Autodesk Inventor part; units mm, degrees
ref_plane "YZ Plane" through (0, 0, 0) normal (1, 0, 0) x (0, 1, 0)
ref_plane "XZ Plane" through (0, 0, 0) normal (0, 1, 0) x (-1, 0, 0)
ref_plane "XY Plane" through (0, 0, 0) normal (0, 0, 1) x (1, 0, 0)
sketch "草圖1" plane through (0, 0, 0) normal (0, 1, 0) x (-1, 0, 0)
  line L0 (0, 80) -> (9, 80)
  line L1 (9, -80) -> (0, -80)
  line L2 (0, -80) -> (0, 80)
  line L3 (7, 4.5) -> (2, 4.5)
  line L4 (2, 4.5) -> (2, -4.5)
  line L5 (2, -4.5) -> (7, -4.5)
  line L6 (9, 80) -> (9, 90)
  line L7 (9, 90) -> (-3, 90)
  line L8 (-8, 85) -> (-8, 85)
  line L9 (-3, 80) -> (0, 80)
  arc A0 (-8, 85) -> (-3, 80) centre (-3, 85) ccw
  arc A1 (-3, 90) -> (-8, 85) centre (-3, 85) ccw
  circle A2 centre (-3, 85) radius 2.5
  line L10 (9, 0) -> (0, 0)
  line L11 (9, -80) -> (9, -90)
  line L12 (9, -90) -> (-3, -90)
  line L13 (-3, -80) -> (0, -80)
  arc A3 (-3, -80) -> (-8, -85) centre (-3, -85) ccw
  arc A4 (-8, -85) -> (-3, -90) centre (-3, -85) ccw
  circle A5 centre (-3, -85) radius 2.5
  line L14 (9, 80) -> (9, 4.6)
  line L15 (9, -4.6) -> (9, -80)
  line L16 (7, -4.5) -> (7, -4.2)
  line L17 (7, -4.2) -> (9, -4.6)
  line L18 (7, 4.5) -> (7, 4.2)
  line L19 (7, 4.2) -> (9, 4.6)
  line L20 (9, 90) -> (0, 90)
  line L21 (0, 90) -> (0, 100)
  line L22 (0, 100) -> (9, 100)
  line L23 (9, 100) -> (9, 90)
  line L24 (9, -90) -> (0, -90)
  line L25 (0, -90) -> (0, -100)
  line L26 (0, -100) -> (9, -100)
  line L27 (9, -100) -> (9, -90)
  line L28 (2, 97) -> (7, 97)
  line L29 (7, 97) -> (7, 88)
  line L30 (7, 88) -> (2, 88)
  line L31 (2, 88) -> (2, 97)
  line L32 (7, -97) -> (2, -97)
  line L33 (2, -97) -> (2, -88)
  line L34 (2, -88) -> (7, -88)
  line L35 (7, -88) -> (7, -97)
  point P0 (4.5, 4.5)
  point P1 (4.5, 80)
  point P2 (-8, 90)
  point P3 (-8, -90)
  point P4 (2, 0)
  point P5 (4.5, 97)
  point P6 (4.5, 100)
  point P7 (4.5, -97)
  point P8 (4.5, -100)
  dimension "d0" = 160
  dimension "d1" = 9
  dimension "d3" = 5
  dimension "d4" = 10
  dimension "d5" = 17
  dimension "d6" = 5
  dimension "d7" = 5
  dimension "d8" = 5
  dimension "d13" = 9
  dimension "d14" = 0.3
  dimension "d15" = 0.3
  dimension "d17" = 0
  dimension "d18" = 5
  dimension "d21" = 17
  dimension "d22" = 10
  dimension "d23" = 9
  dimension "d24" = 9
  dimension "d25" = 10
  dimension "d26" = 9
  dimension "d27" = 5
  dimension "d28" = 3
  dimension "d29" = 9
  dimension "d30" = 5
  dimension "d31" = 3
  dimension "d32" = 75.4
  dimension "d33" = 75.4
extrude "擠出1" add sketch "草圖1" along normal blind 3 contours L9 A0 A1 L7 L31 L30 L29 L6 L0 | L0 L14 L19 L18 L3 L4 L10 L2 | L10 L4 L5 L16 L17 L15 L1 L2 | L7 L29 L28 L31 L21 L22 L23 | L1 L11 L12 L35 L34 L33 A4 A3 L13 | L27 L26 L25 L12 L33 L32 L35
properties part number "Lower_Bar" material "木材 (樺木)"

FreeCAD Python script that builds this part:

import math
import FreeCAD as App
import Part
import Sketcher
from FreeCAD import Vector

doc = App.newDocument("Part")
body = doc.addObject("PartDesign::Body", "Body")

# Sketch on XZ plane
sketch1 = body.newObject("Sketcher::SketchObject", "Sketch")
sketch1.AttachmentSupport = (doc.getObject("XZ_Plane"), [""])
sketch1.MapMode = "FlatFace"
sketch1.addGeometry([
    Part.LineSegment(Vector(3, 80, 0), Vector(0, 80, 0)),  # 0
    Part.LineSegment(Vector(0, 80, 0), Vector(0, -80, 0)),  # 1
    Part.LineSegment(Vector(0, -80, 0), Vector(3, -80, 0)),  # 2
    Part.ArcOfCircle(Part.Circle(Vector(3, -85, 0), Vector(0, 0, 1), 5), math.radians(-90), math.radians(90)),  # 3
    Part.LineSegment(Vector(3, -90, 0), Vector(0, -90, 0)),  # 4
    Part.LineSegment(Vector(0, -90, 0), Vector(0, -100, 0)),  # 5
    Part.LineSegment(Vector(0, -100, 0), Vector(-9, -100, 0)),  # 6
    Part.LineSegment(Vector(-9, -100, 0), Vector(-9, -4.6, 0)),  # 7
    Part.LineSegment(Vector(-9, -4.6, 0), Vector(-7, -4.2, 0)),  # 8
    Part.LineSegment(Vector(-7, -4.2, 0), Vector(-7, -4.5, 0)),  # 9
    Part.LineSegment(Vector(-7, -4.5, 0), Vector(-2, -4.5, 0)),  # 10
    Part.LineSegment(Vector(-2, -4.5, 0), Vector(-2, 4.5, 0)),  # 11
    Part.LineSegment(Vector(-2, 4.5, 0), Vector(-7, 4.5, 0)),  # 12
    Part.LineSegment(Vector(-7, 4.5, 0), Vector(-7, 4.2, 0)),  # 13
    Part.LineSegment(Vector(-7, 4.2, 0), Vector(-9, 4.6, 0)),  # 14
    Part.LineSegment(Vector(-9, 4.6, 0), Vector(-9, 100, 0)),  # 15
    Part.LineSegment(Vector(-9, 100, 0), Vector(0, 100, 0)),  # 16
    Part.LineSegment(Vector(0, 100, 0), Vector(0, 90, 0)),  # 17
    Part.LineSegment(Vector(0, 90, 0), Vector(3, 90, 0)),  # 18
    Part.ArcOfCircle(Part.Circle(Vector(3, 85, 0), Vector(0, 0, 1), 5), math.radians(-90), math.radians(90)),  # 19
    Part.LineSegment(Vector(-2, 88, 0), Vector(-2, 97, 0)),  # 20
    Part.LineSegment(Vector(-2, 97, 0), Vector(-7, 97, 0)),  # 21
    Part.LineSegment(Vector(-7, 97, 0), Vector(-7, 88, 0)),  # 22
    Part.LineSegment(Vector(-7, 88, 0), Vector(-2, 88, 0)),  # 23
    Part.Circle(Vector(3, 85, 0), Vector(0, 0, 1), 2.5),  # 24
    Part.Circle(Vector(3, -85, 0), Vector(0, 0, 1), 2.5),  # 25
    Part.LineSegment(Vector(-7, -88, 0), Vector(-7, -97, 0)),  # 26
    Part.LineSegment(Vector(-7, -97, 0), Vector(-2, -97, 0)),  # 27
    Part.LineSegment(Vector(-2, -97, 0), Vector(-2, -88, 0)),  # 28
    Part.LineSegment(Vector(-2, -88, 0), Vector(-7, -88, 0)),  # 29
], False)
sketch1.addConstraint([
    Sketcher.Constraint("Coincident", 0, 2, 1, 1),
    Sketcher.Constraint("Coincident", 1, 2, 2, 1),
    Sketcher.Constraint("Tangent", 2, 2, 3, 2),
    Sketcher.Constraint("Tangent", 3, 1, 4, 1),
    Sketcher.Constraint("Coincident", 4, 2, 5, 1),
    Sketcher.Constraint("Coincident", 5, 2, 6, 1),
    Sketcher.Constraint("Coincident", 6, 2, 7, 1),
    Sketcher.Constraint("Coincident", 7, 2, 8, 1),
    Sketcher.Constraint("Coincident", 8, 2, 9, 1),
    Sketcher.Constraint("Coincident", 9, 2, 10, 1),
    Sketcher.Constraint("Coincident", 10, 2, 11, 1),
    Sketcher.Constraint("Coincident", 11, 2, 12, 1),
    Sketcher.Constraint("Coincident", 12, 2, 13, 1),
    Sketcher.Constraint("Coincident", 13, 2, 14, 1),
    Sketcher.Constraint("Coincident", 14, 2, 15, 1),
    Sketcher.Constraint("Coincident", 15, 2, 16, 1),
    Sketcher.Constraint("Coincident", 16, 2, 17, 1),
    Sketcher.Constraint("Coincident", 17, 2, 18, 1),
    Sketcher.Constraint("Tangent", 18, 2, 19, 2),
    Sketcher.Constraint("Tangent", 19, 1, 0, 1),
    Sketcher.Constraint("Coincident", 20, 2, 21, 1),
    Sketcher.Constraint("Coincident", 21, 2, 22, 1),
    Sketcher.Constraint("Coincident", 22, 2, 23, 1),
    Sketcher.Constraint("Coincident", 23, 2, 20, 1),
    Sketcher.Constraint("Coincident", 26, 2, 27, 1),
    Sketcher.Constraint("Coincident", 27, 2, 28, 1),
    Sketcher.Constraint("Coincident", 28, 2, 29, 1),
    Sketcher.Constraint("Coincident", 29, 2, 26, 1),
    Sketcher.Constraint("Horizontal", 0),
    Sketcher.Constraint("Vertical", 1),
    Sketcher.Constraint("Horizontal", 2),
    Sketcher.Constraint("Horizontal", 4),
    Sketcher.Constraint("Vertical", 5),
    Sketcher.Constraint("Horizontal", 6),
    Sketcher.Constraint("Vertical", 7),
    Sketcher.Constraint("Vertical", 9),
    Sketcher.Constraint("Horizontal", 10),
    Sketcher.Constraint("Vertical", 11),
    Sketcher.Constraint("Horizontal", 12),
    Sketcher.Constraint("Vertical", 13),
    Sketcher.Constraint("Vertical", 15),
    Sketcher.Constraint("Horizontal", 16),
    Sketcher.Constraint("Vertical", 17),
    Sketcher.Constraint("Horizontal", 18),
    Sketcher.Constraint("Vertical", 20),
    Sketcher.Constraint("Horizontal", 21),
    Sketcher.Constraint("Vertical", 22),
    Sketcher.Constraint("Horizontal", 23),
    Sketcher.Constraint("Vertical", 26),
    Sketcher.Constraint("Horizontal", 27),
    Sketcher.Constraint("Vertical", 28),
    Sketcher.Constraint("Horizontal", 29),
    Sketcher.Constraint("Coincident", 24, 3, 19, 3),
    Sketcher.Constraint("Coincident", 25, 3, 3, 3),
    Sketcher.Constraint("Equal", 3, 19),
    Sketcher.Constraint("Equal", 24, 25),
    Sketcher.Constraint("Symmetric", 0, 2, 1, 2, -1, 1),
    Sketcher.Constraint("Symmetric", 5, 2, 16, 2, -1, 1),
    Sketcher.Constraint("Symmetric", 9, 2, 12, 2, -1),
    Sketcher.Constraint("Symmetric", 7, 2, 14, 2, -1),
    Sketcher.Constraint("Symmetric", 21, 2, 26, 2, -1),
    Sketcher.Constraint("Symmetric", 23, 2, 28, 2, -1),
    Sketcher.Constraint("PointOnObject", 4, 2, -2),
    Sketcher.Constraint("Vertical", 3, 3, 19, 3),
    Sketcher.Constraint("Vertical", 11, 2, 20, 2),
    Sketcher.Constraint("Vertical", 13, 2, 21, 2),
    Sketcher.Constraint("Equal", 16, 11),
    Sketcher.Constraint("Equal", 9, 13),
    Sketcher.Constraint("Equal", 11, 20),
    Sketcher.Constraint("Diameter", 24, 5.0),
    Sketcher.Constraint("Radius", 3, 5.0),
    Sketcher.Constraint("DistanceX", 0, 2, 0, 1, 3.0),
    Sketcher.Constraint("DistanceX", 6, 2, 6, 1, 9.0),
    Sketcher.Constraint("DistanceX", 10, 1, 10, 2, 5.0),
    Sketcher.Constraint("DistanceY", 1, 2, 1, 1, 160.0),
    Sketcher.Constraint("DistanceY", 5, 2, 5, 1, 10.0),
    Sketcher.Constraint("DistanceY", 9, 2, 9, 1, 0.3),
    Sketcher.Constraint("DistanceX", 8, 2, 2, 2, 10.0),
    Sketcher.Constraint("DistanceY", 20, 2, 16, 2, 3.0),
    Sketcher.Constraint("DistanceY", 1, 2, 7, 2, 75.4),
])
pad1 = body.newObject("PartDesign::Pad", "Pad")
pad1.Profile = sketch1
pad1.Length = 3
pad1.Reversed = True

doc.recompute()
